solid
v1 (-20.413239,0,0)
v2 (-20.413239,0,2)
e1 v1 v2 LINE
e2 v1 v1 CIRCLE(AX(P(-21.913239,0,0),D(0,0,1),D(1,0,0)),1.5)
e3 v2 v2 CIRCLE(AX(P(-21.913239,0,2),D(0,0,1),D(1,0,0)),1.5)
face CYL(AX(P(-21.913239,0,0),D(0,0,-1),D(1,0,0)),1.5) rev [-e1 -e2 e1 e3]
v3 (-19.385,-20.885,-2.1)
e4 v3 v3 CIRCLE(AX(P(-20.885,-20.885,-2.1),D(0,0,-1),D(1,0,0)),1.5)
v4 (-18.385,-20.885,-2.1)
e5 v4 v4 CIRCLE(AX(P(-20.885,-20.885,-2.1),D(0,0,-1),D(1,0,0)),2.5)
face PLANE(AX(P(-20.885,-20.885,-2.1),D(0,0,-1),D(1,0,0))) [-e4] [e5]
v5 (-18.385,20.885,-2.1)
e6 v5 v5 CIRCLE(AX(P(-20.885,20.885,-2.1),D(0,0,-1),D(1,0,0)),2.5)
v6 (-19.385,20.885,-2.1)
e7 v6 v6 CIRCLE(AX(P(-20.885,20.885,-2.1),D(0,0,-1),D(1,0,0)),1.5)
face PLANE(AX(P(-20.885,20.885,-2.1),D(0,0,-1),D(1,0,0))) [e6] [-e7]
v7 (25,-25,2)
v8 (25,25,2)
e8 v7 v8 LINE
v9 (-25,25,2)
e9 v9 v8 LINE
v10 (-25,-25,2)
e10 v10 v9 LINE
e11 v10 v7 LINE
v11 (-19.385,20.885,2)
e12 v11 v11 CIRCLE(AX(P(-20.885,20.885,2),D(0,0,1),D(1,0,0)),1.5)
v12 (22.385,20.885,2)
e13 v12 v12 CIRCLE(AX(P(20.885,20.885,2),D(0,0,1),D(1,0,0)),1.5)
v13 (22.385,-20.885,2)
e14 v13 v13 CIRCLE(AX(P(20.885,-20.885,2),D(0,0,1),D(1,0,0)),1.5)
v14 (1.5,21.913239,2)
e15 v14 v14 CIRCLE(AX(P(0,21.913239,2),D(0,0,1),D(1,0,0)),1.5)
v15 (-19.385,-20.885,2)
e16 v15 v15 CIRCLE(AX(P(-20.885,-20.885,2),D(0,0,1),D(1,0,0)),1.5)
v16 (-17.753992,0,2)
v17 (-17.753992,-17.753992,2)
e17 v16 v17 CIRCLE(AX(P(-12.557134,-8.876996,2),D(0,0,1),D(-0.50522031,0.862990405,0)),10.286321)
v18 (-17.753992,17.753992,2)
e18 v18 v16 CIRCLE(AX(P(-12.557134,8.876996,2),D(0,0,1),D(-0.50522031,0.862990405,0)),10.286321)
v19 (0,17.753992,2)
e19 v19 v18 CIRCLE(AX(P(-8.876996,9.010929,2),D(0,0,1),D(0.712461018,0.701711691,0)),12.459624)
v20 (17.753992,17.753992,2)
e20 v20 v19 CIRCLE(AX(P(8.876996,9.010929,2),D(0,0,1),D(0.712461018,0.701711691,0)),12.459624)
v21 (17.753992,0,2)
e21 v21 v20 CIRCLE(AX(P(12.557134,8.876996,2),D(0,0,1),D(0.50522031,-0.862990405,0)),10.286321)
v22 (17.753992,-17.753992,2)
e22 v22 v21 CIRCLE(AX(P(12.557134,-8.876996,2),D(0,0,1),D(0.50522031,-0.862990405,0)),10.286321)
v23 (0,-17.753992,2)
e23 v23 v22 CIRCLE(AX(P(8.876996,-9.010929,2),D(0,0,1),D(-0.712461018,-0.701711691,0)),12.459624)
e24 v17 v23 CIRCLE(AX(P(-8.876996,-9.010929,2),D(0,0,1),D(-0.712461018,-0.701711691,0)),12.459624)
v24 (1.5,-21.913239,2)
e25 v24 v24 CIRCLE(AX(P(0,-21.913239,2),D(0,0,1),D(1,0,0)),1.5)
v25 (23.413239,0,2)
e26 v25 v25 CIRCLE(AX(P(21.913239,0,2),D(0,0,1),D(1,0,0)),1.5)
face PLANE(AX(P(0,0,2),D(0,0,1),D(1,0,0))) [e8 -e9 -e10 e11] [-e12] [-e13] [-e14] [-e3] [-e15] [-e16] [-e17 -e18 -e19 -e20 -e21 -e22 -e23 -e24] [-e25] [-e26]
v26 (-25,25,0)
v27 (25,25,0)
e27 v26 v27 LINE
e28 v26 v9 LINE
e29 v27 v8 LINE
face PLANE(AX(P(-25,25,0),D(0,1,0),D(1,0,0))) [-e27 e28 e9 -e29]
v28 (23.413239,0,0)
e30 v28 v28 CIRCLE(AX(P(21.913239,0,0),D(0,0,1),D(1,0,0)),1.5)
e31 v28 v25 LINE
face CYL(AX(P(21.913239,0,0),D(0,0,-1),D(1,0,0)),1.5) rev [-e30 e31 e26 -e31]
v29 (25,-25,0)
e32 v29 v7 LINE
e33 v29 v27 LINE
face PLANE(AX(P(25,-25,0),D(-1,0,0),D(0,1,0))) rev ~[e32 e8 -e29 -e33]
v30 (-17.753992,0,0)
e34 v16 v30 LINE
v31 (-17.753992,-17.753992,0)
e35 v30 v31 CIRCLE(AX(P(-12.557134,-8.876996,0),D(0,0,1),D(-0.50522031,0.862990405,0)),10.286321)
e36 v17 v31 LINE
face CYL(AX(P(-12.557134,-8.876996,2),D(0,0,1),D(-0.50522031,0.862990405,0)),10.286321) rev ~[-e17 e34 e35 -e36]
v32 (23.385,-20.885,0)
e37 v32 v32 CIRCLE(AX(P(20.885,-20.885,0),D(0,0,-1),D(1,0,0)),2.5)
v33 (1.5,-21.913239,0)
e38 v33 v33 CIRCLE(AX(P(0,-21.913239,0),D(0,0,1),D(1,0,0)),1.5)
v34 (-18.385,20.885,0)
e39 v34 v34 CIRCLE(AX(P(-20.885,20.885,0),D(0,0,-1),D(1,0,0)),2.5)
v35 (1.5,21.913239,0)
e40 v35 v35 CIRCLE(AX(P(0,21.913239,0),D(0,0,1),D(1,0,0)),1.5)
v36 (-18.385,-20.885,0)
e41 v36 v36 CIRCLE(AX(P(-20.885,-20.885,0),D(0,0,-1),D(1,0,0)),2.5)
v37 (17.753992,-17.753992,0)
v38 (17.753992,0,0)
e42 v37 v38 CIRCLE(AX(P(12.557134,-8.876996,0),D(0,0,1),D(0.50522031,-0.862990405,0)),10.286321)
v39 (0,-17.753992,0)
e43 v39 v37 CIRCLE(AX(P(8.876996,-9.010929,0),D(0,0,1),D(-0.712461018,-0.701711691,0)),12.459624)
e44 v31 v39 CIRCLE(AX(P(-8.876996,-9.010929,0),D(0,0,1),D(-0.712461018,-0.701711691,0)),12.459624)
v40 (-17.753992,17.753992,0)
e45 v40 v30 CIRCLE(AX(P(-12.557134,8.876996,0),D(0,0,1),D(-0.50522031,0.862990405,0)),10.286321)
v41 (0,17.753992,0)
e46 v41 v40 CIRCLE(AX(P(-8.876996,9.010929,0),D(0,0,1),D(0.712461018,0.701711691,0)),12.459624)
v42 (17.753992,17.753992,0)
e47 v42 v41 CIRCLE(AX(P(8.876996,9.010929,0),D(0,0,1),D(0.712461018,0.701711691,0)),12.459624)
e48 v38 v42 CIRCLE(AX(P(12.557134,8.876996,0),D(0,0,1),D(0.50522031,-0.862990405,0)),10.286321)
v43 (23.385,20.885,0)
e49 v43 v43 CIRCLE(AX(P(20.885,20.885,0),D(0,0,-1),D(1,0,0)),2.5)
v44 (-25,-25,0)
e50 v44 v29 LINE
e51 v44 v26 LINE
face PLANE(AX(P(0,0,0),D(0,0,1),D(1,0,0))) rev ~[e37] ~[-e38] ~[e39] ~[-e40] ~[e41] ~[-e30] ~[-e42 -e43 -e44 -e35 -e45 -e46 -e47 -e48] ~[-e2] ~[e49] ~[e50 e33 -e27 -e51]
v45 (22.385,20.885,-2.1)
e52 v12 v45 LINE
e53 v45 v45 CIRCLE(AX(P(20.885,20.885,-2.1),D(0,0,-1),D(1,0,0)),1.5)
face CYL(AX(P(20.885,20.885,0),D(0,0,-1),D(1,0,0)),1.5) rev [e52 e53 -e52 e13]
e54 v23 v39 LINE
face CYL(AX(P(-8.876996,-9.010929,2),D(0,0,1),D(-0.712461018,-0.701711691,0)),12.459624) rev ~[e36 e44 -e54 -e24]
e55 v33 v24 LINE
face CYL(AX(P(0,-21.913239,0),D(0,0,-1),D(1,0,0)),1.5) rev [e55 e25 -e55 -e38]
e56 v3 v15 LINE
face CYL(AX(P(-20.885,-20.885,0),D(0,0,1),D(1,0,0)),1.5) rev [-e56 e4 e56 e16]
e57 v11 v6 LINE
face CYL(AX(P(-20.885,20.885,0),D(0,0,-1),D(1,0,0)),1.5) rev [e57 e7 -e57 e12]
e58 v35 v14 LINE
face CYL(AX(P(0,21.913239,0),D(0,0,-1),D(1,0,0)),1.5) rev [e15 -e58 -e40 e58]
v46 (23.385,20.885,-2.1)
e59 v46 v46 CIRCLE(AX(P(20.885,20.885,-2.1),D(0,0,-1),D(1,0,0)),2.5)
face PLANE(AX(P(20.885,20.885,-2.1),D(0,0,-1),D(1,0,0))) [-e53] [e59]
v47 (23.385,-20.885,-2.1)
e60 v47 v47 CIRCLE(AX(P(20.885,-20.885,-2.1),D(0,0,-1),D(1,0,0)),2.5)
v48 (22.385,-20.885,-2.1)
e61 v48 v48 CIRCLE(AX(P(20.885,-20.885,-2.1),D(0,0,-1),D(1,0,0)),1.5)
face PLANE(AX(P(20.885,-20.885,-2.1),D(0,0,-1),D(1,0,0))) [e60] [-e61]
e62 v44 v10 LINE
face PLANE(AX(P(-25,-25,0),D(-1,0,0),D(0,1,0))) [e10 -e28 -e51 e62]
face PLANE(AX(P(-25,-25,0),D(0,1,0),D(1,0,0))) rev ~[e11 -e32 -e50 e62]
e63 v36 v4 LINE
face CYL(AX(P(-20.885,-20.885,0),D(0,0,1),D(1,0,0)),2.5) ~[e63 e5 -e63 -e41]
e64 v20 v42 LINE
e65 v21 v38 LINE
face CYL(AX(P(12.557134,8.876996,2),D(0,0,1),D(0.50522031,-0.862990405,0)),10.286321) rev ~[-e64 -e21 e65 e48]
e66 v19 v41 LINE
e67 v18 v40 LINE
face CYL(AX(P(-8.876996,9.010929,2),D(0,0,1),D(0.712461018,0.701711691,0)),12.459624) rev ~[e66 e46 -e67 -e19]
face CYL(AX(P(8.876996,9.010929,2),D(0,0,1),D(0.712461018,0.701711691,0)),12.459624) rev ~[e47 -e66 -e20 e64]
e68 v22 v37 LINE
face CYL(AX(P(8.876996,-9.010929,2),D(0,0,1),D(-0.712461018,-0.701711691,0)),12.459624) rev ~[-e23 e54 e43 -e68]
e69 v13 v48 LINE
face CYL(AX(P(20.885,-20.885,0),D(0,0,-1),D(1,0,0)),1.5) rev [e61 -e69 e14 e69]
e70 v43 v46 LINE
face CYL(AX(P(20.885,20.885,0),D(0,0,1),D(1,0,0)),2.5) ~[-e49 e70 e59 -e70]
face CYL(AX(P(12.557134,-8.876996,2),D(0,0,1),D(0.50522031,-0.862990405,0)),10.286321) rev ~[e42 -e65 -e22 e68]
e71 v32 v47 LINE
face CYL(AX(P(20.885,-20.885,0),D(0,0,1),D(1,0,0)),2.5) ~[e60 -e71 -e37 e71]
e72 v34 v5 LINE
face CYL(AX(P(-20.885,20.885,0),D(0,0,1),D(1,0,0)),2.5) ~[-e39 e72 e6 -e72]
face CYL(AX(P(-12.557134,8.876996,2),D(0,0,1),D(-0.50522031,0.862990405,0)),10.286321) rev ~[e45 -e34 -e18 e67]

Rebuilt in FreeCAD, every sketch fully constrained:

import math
import FreeCAD as App
import Part
import Sketcher

V = App.Vector
Q = App.Units.Quantity

doc = App.newDocument("Part")
body = doc.addObject("PartDesign::Body", "Body")

# Sketch on XY plane
sketch1 = doc.addObject("Sketcher::SketchObject", "Sketch")
body.addObject(sketch1)
sketch1.AttachmentSupport = (doc.XY_Plane, [""])
sketch1.MapMode = "FlatFace"
sketch1.addGeometry(Part.LineSegment(V(-25, 25, 0), V(-25, -25, 0)), False)
sketch1.addGeometry(Part.LineSegment(V(-25, -25, 0), V(25, -25, 0)), False)
sketch1.addGeometry(Part.LineSegment(V(25, -25, 0), V(25, 25, 0)), False)
sketch1.addGeometry(Part.LineSegment(V(25, 25, 0), V(-25, 25, 0)), False)
sketch1.addGeometry(Part.Circle(V(-20.885, -20.885, 0), V(0, 0, 1), 1.5), False)
sketch1.addGeometry(Part.Circle(V(0, -21.913239, 0), V(0, 0, 1), 1.5), False)
sketch1.addGeometry(Part.Circle(V(20.885, -20.885, 0), V(0, 0, 1), 1.5), False)
sketch1.addGeometry(Part.Circle(V(-21.913239, 0, 0), V(0, 0, 1), 1.5), False)
sketch1.addGeometry(Part.Circle(V(-20.885, 20.885, 0), V(0, 0, 1), 1.5), False)
sketch1.addGeometry(Part.Circle(V(21.913239, 0, 0), V(0, 0, 1), 1.5), False)
sketch1.addGeometry(Part.Circle(V(0, 21.913239, 0), V(0, 0, 1), 1.5), False)
sketch1.addGeometry(Part.Circle(V(20.885, 20.885, 0), V(0, 0, 1), 1.5), False)
sketch1.addConstraint(Sketcher.Constraint("Coincident", 0, 2, 1, 1))
sketch1.addConstraint(Sketcher.Constraint("Coincident", 1, 2, 2, 1))
sketch1.addConstraint(Sketcher.Constraint("Coincident", 2, 2, 3, 1))
sketch1.addConstraint(Sketcher.Constraint("Coincident", 3, 2, 0, 1))
sketch1.addConstraint(Sketcher.Constraint("Vertical", 0))
sketch1.addConstraint(Sketcher.Constraint("Horizontal", 1))
sketch1.addConstraint(Sketcher.Constraint("Vertical", 2))
sketch1.addConstraint(Sketcher.Constraint("Horizontal", 3))
sketch1.addConstraint(Sketcher.Constraint("Equal", 4, 5))
sketch1.addConstraint(Sketcher.Constraint("Equal", 5, 6))
sketch1.addConstraint(Sketcher.Constraint("Equal", 6, 7))
sketch1.addConstraint(Sketcher.Constraint("Equal", 7, 8))
sketch1.addConstraint(Sketcher.Constraint("Equal", 8, 9))
sketch1.addConstraint(Sketcher.Constraint("Equal", 9, 10))
sketch1.addConstraint(Sketcher.Constraint("Equal", 10, 11))
sketch1.addConstraint(Sketcher.Constraint("Symmetric", 6, 3, 8, 3, -1, 1))
sketch1.addConstraint(Sketcher.Constraint("Symmetric", 7, 3, 9, 3, -1, 1))
sketch1.addConstraint(Sketcher.Constraint("Symmetric", 5, 3, 10, 3, -1, 1))
sketch1.addConstraint(Sketcher.Constraint("Symmetric", 4, 3, 11, 3, -1, 1))
sketch1.addConstraint(Sketcher.Constraint("Symmetric", 0, 2, 2, 2, -1, 1))
sketch1.addConstraint(Sketcher.Constraint("Symmetric", 4, 3, 6, 3, -2))
sketch1.addConstraint(Sketcher.Constraint("PointOnObject", 5, 3, -2))
sketch1.addConstraint(Sketcher.Constraint("PointOnObject", 7, 3, -1))
sketch1.addConstraint(Sketcher.Constraint("Equal", 3, 0))
sketch1.addConstraint(Sketcher.Constraint("Diameter", 4, Q("3 mm")))
sketch1.addConstraint(Sketcher.Constraint("DistanceX", 1, 1, 1, 2, Q("50 mm")))
sketch1.addConstraint(Sketcher.Constraint("DistanceX", 4, 3, 6, 3, Q("41.77 mm")))
sketch1.addConstraint(Sketcher.Constraint("DistanceY", 4, 3, 8, 3, Q("41.77 mm")))
sketch1.addConstraint(Sketcher.Constraint("DistanceY", 5, 3, -1, 1, Q("21.913239 mm")))
sketch1.addConstraint(Sketcher.Constraint("DistanceX", 7, 3, -1, 1, Q("21.913239 mm")))
pad1 = doc.addObject("PartDesign::Pad", "Pad")
body.addObject(pad1)
pad1.Profile = sketch1
pad1.Length = 2

# Sketch on XY plane
sketch2 = doc.addObject("Sketcher::SketchObject", "Sketch001")
body.addObject(sketch2)
sketch2.AttachmentSupport = (doc.XY_Plane, [""])
sketch2.MapMode = "FlatFace"
sketch2.AttachmentOffset = App.Placement(V(0, 0, 2), App.Rotation())
sketch2.addGeometry(Part.ArcOfCircle(Part.Circle(V(-8.876996, 9.010929, 0), V(0, 0, 1), 12.459624), math.radians(44.564495), math.radians(135.435505)), False)
sketch2.addGeometry(Part.ArcOfCircle(Part.Circle(V(-12.557134, 8.876996, 0), V(0, 0, 1), 10.286321), math.radians(120.345978), math.radians(239.654022)), False)
sketch2.addGeometry(Part.ArcOfCircle(Part.Circle(V(-12.557134, -8.876996, 0), V(0, 0, 1), 10.286321), math.radians(120.345978), math.radians(239.654022)), False)
sketch2.addGeometry(Part.ArcOfCircle(Part.Circle(V(-8.876996, -9.010929, 0), V(0, 0, 1), 12.459624), math.radians(-135.435505), math.radians(-44.564495)), False)
sketch2.addGeometry(Part.ArcOfCircle(Part.Circle(V(8.876996, -9.010929, 0), V(0, 0, 1), 12.459624), math.radians(-135.435505), math.radians(-44.564495)), False)
sketch2.addGeometry(Part.ArcOfCircle(Part.Circle(V(12.557134, -8.876996, 0), V(0, 0, 1), 10.286321), math.radians(-59.654022), math.radians(59.654022)), False)
sketch2.addGeometry(Part.ArcOfCircle(Part.Circle(V(12.557134, 8.876996, 0), V(0, 0, 1), 10.286321), math.radians(-59.654022), math.radians(59.654022)), False)
sketch2.addGeometry(Part.ArcOfCircle(Part.Circle(V(8.876996, 9.010929, 0), V(0, 0, 1), 12.459624), math.radians(44.564495), math.radians(135.435505)), False)
sketch2.addConstraint(Sketcher.Constraint("Coincident", 0, 2, 1, 1))
sketch2.addConstraint(Sketcher.Constraint("Coincident", 1, 2, 2, 1))
sketch2.addConstraint(Sketcher.Constraint("Coincident", 2, 2, 3, 1))
sketch2.addConstraint(Sketcher.Constraint("Coincident", 3, 2, 4, 1))
sketch2.addConstraint(Sketcher.Constraint("Coincident", 4, 2, 5, 1))
sketch2.addConstraint(Sketcher.Constraint("Coincident", 5, 2, 6, 1))
sketch2.addConstraint(Sketcher.Constraint("Coincident", 6, 2, 7, 1))
sketch2.addConstraint(Sketcher.Constraint("Coincident", 7, 2, 0, 1))
sketch2.addConstraint(Sketcher.Constraint("Equal", 1, 2))
sketch2.addConstraint(Sketcher.Constraint("Equal", 0, 3))
sketch2.addConstraint(Sketcher.Constraint("Equal", 3, 4))
sketch2.addConstraint(Sketcher.Constraint("Equal", 2, 5))
sketch2.addConstraint(Sketcher.Constraint("Equal", 5, 6))
sketch2.addConstraint(Sketcher.Constraint("Equal", 4, 7))
sketch2.addConstraint(Sketcher.Constraint("Symmetric", 0, 3, 4, 3, -1, 1))
sketch2.addConstraint(Sketcher.Constraint("Symmetric", 1, 3, 5, 3, -1, 1))
sketch2.addConstraint(Sketcher.Constraint("Symmetric", 2, 3, 6, 3, -1, 1))
sketch2.addConstraint(Sketcher.Constraint("Symmetric", 3, 3, 7, 3, -1, 1))
sketch2.addConstraint(Sketcher.Constraint("Symmetric", 3, 3, 4, 3, -2))
sketch2.addConstraint(Sketcher.Constraint("Symmetric", 2, 3, 5, 3, -2))
sketch2.addConstraint(Sketcher.Constraint("Horizontal", 2, 2, 3, 2))
sketch2.addConstraint(Sketcher.Constraint("Vertical", 0, 2, 1, 2))
sketch2.addConstraint(Sketcher.Constraint("Radius", 1, Q("10.286321 mm")))
sketch2.addConstraint(Sketcher.Constraint("Radius", 0, Q("12.459624 mm")))
sketch2.addConstraint(Sketcher.Constraint("DistanceY", -1, 1, 0, 3, Q("9.010929 mm")))
sketch2.addConstraint(Sketcher.Constraint("DistanceX", 2, 3, 4, 3, Q("21.43413 mm")))
pocket1 = doc.addObject("PartDesign::Pocket", "Pocket")
body.addObject(pocket1)
pocket1.Profile = sketch2
pocket1.Length = 25

# Sketch on XY plane
sketch3 = doc.addObject("Sketcher::SketchObject", "Sketch002")
body.addObject(sketch3)
sketch3.AttachmentSupport = (doc.XY_Plane, [""])
sketch3.MapMode = "FlatFace"
sketch3.addGeometry(Part.Circle(V(-20.885, -20.885, 0), V(0, 0, 1), 2.5), False)
sketch3.addGeometry(Part.Circle(V(-20.885, -20.885, 0), V(0, 0, 1), 1.5), False)
sketch3.addGeometry(Part.Circle(V(20.885, -20.885, 0), V(0, 0, 1), 2.5), False)
sketch3.addGeometry(Part.Circle(V(20.885, -20.885, 0), V(0, 0, 1), 1.5), False)
sketch3.addGeometry(Part.Circle(V(20.885, 20.885, 0), V(0, 0, 1), 2.5), False)
sketch3.addGeometry(Part.Circle(V(20.885, 20.885, 0), V(0, 0, 1), 1.5), False)
sketch3.addGeometry(Part.Circle(V(-20.885, 20.885, 0), V(0, 0, 1), 2.5), False)
sketch3.addGeometry(Part.Circle(V(-20.885, 20.885, 0), V(0, 0, 1), 1.5), False)
sketch3.addConstraint(Sketcher.Constraint("Coincident", 1, 3, 0, 3))
sketch3.addConstraint(Sketcher.Constraint("Coincident", 3, 3, 2, 3))
sketch3.addConstraint(Sketcher.Constraint("Coincident", 5, 3, 4, 3))
sketch3.addConstraint(Sketcher.Constraint("Coincident", 7, 3, 6, 3))
sketch3.addConstraint(Sketcher.Constraint("Equal", 0, 2))
sketch3.addConstraint(Sketcher.Constraint("Equal", 1, 3))
sketch3.addConstraint(Sketcher.Constraint("Equal", 2, 4))
sketch3.addConstraint(Sketcher.Constraint("Equal", 3, 5))
sketch3.addConstraint(Sketcher.Constraint("Equal", 4, 6))
sketch3.addConstraint(Sketcher.Constraint("Equal", 5, 7))
sketch3.addConstraint(Sketcher.Constraint("Symmetric", 0, 3, 4, 3, -1, 1))
sketch3.addConstraint(Sketcher.Constraint("Symmetric", 2, 3, 6, 3, -1, 1))
sketch3.addConstraint(Sketcher.Constraint("Symmetric", 0, 3, 2, 3, -2))
sketch3.addConstraint(Sketcher.Constraint("Diameter", 0, Q("5 mm")))
sketch3.addConstraint(Sketcher.Constraint("Diameter", 1, Q("3 mm")))
sketch3.addConstraint(Sketcher.Constraint("DistanceX", 0, 3, 2, 3, Q("41.77 mm")))
sketch3.addConstraint(Sketcher.Constraint("DistanceY", 2, 3, 4, 3, Q("41.77 mm")))
pad2 = doc.addObject("PartDesign::Pad", "Pad001")
body.addObject(pad2)
pad2.Profile = sketch3
pad2.Length = 2.1
pad2.Reversed = True

doc.recompute()
